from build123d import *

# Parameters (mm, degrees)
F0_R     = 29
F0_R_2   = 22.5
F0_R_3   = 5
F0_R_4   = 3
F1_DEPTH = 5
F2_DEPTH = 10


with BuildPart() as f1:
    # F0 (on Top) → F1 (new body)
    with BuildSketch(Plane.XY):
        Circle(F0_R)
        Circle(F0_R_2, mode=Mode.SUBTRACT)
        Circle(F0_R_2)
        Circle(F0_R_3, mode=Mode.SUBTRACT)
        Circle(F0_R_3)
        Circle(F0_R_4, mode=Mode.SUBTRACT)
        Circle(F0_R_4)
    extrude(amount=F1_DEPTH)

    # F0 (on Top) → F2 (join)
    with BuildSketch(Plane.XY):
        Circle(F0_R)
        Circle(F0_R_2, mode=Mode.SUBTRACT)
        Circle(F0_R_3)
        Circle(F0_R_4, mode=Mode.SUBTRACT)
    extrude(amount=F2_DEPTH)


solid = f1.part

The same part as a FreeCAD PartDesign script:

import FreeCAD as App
import Part
import Sketcher
from FreeCAD import Vector

doc = App.newDocument("Part")
params = doc.addObject("Spreadsheet::Sheet", "Params")
for row, (alias, value) in enumerate([
    ("sketch1_diameter", "58 mm"),
    ("pad1_length", "5 mm"),
    ("sketch2_diameter", "58 mm"),
    ("sketch2_diameter2", "45 mm"),
    ("sketch2_diameter3", "10 mm"),
    ("sketch2_diameter4", "6 mm"),
    ("pad2_length", "10 mm"),
], start=1):
    params.set(f"A{row}", alias)
    params.set(f"B{row}", "=" + value)
    params.setAlias(f"B{row}", alias)

body = doc.addObject("PartDesign::Body", "Body")

sketch1 = body.newObject("Sketcher::SketchObject", "Sketch")
sketch1.AttachmentSupport = (doc.getObject("XY_Plane"), [""])
sketch1.MapMode = "FlatFace"
sketch1.addGeometry(Part.Circle(Vector(0, 0, 0), Vector(0, 0, 1), 29), False)
sketch1.addConstraint([
    Sketcher.Constraint("Coincident", 0, 3, -1, 1),
    Sketcher.Constraint("Diameter", 0, 58.0),
])
sketch1.setExpression("Constraints[1]", "Params.sketch1_diameter")
pad1 = body.newObject("PartDesign::Pad", "Pad")
pad1.Profile = sketch1
pad1.setExpression("Length", "Params.pad1_length")

sketch2 = body.newObject("Sketcher::SketchObject", "Sketch001")
sketch2.AttachmentSupport = (doc.getObject("XY_Plane"), [""])
sketch2.MapMode = "FlatFace"
sketch2.addGeometry([
    Part.Circle(Vector(0, 0, 0), Vector(0, 0, 1), 29),
    Part.Circle(Vector(0, 0, 0), Vector(0, 0, 1), 22.5),
    Part.Circle(Vector(0, 0, 0), Vector(0, 0, 1), 5),
    Part.Circle(Vector(0, 0, 0), Vector(0, 0, 1), 3),
], False)
sketch2.addConstraint([
    Sketcher.Constraint("Coincident", 0, 3, -1, 1),
    Sketcher.Constraint("Coincident", 1, 3, -1, 1),
    Sketcher.Constraint("Coincident", 2, 3, -1, 1),
    Sketcher.Constraint("Coincident", 3, 3, -1, 1),
    Sketcher.Constraint("Diameter", 0, 58.0),
    Sketcher.Constraint("Diameter", 1, 45.0),
    Sketcher.Constraint("Diameter", 2, 10.0),
    Sketcher.Constraint("Diameter", 3, 6.0),
])
sketch2.setExpression("Constraints[4]", "Params.sketch2_diameter")
sketch2.setExpression("Constraints[5]", "Params.sketch2_diameter2")
sketch2.setExpression("Constraints[6]", "Params.sketch2_diameter3")
sketch2.setExpression("Constraints[7]", "Params.sketch2_diameter4")
pad2 = body.newObject("PartDesign::Pad", "Pad001")
pad2.Profile = sketch2
pad2.setExpression("Length", "Params.pad2_length")

doc.recompute()
